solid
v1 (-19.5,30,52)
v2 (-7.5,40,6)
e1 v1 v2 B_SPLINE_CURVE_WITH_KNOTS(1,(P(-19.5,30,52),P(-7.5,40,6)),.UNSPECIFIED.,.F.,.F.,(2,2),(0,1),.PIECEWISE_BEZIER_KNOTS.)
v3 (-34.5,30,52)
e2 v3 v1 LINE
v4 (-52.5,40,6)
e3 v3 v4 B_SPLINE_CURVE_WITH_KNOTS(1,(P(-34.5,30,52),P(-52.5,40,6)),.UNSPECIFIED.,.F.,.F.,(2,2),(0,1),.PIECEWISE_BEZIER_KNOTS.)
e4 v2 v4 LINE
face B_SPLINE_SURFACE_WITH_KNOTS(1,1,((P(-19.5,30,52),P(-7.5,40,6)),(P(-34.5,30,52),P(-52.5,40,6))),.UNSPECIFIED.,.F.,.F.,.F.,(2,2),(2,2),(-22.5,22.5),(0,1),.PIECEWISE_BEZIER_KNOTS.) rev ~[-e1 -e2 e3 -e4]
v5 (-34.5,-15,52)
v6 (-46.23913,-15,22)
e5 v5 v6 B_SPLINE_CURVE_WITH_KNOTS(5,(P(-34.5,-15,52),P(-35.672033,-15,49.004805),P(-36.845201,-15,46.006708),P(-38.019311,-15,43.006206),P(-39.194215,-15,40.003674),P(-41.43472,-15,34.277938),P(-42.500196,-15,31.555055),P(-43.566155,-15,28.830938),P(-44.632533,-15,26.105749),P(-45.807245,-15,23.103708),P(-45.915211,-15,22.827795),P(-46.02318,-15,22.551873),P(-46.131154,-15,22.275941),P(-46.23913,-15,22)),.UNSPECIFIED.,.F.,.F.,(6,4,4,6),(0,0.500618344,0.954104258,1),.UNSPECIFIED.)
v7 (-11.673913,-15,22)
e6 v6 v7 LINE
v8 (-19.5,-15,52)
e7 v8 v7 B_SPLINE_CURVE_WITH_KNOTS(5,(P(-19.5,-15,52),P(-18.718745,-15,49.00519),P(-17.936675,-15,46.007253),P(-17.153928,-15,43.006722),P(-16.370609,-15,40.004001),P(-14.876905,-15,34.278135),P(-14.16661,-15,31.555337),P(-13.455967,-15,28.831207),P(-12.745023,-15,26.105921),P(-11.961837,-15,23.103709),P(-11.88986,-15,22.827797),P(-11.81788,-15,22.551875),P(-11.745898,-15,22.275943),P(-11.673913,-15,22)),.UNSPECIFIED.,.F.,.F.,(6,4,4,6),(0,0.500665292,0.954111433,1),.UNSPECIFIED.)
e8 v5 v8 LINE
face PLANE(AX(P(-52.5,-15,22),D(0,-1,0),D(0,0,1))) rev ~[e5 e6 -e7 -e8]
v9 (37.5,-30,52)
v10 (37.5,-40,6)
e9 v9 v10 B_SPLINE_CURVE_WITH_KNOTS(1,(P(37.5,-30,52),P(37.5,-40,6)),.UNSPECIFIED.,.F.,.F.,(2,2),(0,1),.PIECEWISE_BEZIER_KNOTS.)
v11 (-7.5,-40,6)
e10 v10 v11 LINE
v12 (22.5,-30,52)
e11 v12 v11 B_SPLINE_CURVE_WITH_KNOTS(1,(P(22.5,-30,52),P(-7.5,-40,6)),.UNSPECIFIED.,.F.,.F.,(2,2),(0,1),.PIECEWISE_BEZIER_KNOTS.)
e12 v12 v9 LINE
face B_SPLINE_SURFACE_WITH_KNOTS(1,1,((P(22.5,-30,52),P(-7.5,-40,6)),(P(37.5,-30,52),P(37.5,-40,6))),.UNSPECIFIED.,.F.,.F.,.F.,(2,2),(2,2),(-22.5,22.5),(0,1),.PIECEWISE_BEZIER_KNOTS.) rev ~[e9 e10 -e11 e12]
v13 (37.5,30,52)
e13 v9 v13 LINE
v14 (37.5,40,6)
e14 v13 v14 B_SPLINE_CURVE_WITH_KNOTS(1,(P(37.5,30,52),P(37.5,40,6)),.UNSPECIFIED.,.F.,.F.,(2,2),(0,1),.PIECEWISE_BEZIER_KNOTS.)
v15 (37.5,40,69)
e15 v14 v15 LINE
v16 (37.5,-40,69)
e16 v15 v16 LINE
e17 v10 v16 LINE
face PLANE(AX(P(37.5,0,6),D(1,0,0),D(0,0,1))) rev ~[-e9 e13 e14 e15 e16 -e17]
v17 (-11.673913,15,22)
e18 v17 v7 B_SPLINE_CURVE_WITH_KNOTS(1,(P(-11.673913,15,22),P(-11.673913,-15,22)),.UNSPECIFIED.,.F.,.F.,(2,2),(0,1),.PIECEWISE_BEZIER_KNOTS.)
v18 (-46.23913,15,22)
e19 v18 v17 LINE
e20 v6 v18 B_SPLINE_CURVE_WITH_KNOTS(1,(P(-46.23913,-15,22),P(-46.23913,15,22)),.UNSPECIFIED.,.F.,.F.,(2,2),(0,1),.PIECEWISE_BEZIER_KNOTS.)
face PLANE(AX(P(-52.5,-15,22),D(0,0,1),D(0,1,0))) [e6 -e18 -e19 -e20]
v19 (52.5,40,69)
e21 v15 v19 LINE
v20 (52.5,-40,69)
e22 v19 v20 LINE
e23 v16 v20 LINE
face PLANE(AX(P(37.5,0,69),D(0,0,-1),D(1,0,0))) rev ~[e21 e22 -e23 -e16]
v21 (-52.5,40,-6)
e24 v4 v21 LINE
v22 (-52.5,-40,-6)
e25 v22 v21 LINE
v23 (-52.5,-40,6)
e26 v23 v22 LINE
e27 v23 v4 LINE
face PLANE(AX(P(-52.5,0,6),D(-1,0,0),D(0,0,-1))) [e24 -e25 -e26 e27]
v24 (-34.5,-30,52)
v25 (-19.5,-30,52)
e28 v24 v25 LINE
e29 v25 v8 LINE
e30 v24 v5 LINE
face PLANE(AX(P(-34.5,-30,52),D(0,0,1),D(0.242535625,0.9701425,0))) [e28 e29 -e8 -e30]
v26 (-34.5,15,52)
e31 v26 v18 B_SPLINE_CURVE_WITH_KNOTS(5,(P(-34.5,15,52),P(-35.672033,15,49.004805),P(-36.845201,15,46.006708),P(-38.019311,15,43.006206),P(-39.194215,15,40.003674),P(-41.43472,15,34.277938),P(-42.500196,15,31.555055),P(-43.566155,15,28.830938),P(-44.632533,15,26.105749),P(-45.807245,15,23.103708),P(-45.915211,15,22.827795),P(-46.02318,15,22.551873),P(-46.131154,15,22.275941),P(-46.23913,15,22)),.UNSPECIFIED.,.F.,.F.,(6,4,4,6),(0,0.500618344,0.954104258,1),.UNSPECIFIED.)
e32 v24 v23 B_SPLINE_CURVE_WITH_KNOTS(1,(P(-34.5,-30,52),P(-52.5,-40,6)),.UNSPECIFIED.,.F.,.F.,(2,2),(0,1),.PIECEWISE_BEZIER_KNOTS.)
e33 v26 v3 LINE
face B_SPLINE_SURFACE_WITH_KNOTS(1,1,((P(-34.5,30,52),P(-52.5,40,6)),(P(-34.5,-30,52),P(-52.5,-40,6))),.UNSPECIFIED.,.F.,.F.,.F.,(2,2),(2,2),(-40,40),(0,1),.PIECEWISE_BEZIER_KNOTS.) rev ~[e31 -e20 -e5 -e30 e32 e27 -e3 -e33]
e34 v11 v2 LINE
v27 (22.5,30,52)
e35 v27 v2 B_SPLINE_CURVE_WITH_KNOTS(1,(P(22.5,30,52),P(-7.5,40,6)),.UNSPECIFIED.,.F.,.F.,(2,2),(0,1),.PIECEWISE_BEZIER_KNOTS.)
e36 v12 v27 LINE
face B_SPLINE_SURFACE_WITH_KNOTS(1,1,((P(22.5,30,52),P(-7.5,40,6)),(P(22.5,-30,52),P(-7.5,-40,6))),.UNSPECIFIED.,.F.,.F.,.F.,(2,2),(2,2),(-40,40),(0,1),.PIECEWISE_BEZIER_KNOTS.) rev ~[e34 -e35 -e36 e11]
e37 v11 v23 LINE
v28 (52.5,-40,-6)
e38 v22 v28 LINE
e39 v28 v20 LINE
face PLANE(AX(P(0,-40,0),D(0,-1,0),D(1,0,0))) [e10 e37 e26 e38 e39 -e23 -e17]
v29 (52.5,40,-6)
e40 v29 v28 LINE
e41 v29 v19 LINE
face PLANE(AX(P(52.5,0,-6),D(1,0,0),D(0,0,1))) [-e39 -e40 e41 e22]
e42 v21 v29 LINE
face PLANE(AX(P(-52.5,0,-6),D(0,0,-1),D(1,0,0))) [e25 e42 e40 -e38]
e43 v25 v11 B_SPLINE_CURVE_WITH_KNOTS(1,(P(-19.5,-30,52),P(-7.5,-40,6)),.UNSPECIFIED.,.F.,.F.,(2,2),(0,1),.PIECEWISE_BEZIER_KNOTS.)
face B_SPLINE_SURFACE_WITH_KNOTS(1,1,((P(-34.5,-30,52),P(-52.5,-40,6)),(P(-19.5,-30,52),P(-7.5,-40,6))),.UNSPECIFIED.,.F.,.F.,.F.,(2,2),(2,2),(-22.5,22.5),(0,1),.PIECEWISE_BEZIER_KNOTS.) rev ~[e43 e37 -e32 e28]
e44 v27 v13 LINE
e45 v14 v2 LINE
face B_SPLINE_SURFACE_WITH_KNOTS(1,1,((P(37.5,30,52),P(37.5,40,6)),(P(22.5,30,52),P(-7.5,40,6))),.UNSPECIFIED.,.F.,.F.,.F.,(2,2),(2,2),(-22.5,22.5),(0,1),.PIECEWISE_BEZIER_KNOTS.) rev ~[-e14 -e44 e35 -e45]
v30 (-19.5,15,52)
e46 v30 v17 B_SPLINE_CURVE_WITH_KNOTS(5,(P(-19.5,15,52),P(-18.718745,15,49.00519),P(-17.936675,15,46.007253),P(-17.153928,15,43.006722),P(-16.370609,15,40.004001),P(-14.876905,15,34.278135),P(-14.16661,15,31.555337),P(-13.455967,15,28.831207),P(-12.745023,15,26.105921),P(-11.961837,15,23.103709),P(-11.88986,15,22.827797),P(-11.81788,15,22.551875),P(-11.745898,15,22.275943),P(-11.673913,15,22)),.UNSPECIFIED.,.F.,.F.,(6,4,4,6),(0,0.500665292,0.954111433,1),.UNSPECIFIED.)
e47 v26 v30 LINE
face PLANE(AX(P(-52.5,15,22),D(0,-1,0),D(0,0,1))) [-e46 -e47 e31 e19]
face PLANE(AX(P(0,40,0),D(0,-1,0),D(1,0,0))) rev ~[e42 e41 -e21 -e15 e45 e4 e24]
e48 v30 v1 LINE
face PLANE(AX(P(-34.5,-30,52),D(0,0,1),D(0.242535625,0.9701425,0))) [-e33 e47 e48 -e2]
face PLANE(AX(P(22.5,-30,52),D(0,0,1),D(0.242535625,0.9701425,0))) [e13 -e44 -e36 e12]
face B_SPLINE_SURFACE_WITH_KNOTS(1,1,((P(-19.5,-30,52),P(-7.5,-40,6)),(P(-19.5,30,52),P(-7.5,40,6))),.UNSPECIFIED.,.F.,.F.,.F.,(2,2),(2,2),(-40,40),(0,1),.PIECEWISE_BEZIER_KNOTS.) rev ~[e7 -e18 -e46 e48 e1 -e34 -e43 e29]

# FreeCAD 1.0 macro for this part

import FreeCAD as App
import Part
import Sketcher

V = App.Vector

doc = App.newDocument("Part")
body = doc.addObject("PartDesign::Body", "Body")

# Sketch on XZ plane
sketch1 = body.newObject("Sketcher::SketchObject", "Sketch")
sketch1.AttachmentSupport = (doc.getObject("XZ_Plane"), [""])
sketch1.MapMode = "FlatFace"
sketch1.addGeometry([
    Part.LineSegment(V(-52, -6, 0), V(52, -6, 0)),  # 0
    Part.LineSegment(V(52, -6, 0), V(52, 69, 0)),  # 1
    Part.LineSegment(V(52, 69, 0), V(38, 69, 0)),  # 2
    Part.LineSegment(V(38, 69, 0), V(38, 6, 0)),  # 3
    Part.LineSegment(V(38, 6, 0), V(-52, 6, 0)),  # 4
    Part.LineSegment(V(-52, 6, 0), V(-52, -6, 0)),  # 5
], False)
sketch1.addConstraint([
    Sketcher.Constraint("Coincident", 0, 2, 1, 1),
    Sketcher.Constraint("Coincident", 1, 2, 2, 1),
    Sketcher.Constraint("Coincident", 2, 2, 3, 1),
    Sketcher.Constraint("Coincident", 3, 2, 4, 1),
    Sketcher.Constraint("Coincident", 4, 2, 5, 1),
    Sketcher.Constraint("Coincident", 5, 2, 0, 1),
    Sketcher.Constraint("Horizontal", 0),
    Sketcher.Constraint("Vertical", 1),
    Sketcher.Constraint("Horizontal", 2),
    Sketcher.Constraint("Vertical", 3),
    Sketcher.Constraint("Horizontal", 4),
    Sketcher.Constraint("Vertical", 5),
    Sketcher.Constraint("Symmetric", 0, 2, 4, 2, -1, 1),
    Sketcher.Constraint("DistanceX", 0, 1, 0, 2, 105.0),
    Sketcher.Constraint("DistanceX", 2, 2, 2, 1, 15.0),
    Sketcher.Constraint("DistanceY", 1, 1, 1, 2, 75.0),
    Sketcher.Constraint("DistanceY", 3, 2, 3, 1, 63.0),
])
pad1 = body.newObject("PartDesign::Pad", "Pad")
pad1.Profile = sketch1
pad1.Length = 80
pad1.Midplane = True

# Sketch on XY plane
sketch2 = body.newObject("Sketcher::SketchObject", "Sketch001")
sketch2.AttachmentSupport = (doc.getObject("XY_Plane"), [""])
sketch2.MapMode = "FlatFace"
sketch2.AttachmentOffset = App.Placement(V(0, 0, 52), App.Rotation())
sketch2.addGeometry([
    Part.LineSegment(V(-34, 30, 0), V(-34, -30, 0)),
    Part.LineSegment(V(-34, -30, 0), V(-20, -30, 0)),
    Part.LineSegment(V(-20, -30, 0), V(-20, 30, 0)),
    Part.LineSegment(V(-20, 30, 0), V(-34, 30, 0)),
], False)
sketch2.addConstraint([
    Sketcher.Constraint("Coincident", 0, 2, 1, 1),
    Sketcher.Constraint("Coincident", 1, 2, 2, 1),
    Sketcher.Constraint("Coincident", 2, 2, 3, 1),
    Sketcher.Constraint("Coincident", 3, 2, 0, 1),
    Sketcher.Constraint("Vertical", 0),
    Sketcher.Constraint("Horizontal", 1),
    Sketcher.Constraint("Vertical", 2),
    Sketcher.Constraint("Horizontal", 3),
    Sketcher.Constraint("DistanceX", 1, 1, 1, 2, 15.0),
    Sketcher.Constraint("DistanceY", 0, 2, 0, 1, 60.0),
    Sketcher.Constraint("DistanceY", 0, 2, -1, 1, 30.0),
    Sketcher.Constraint("DistanceX", 0, 2, -1, 1, 34.5),
])

# Sketch on XY plane
sketch3 = body.newObject("Sketcher::SketchObject", "Sketch002")
sketch3.AttachmentSupport = (doc.getObject("XY_Plane"), [""])
sketch3.MapMode = "FlatFace"
sketch3.AttachmentOffset = App.Placement(V(0, 0, 6), App.Rotation())
sketch3.addGeometry([
    Part.LineSegment(V(-52, 40, 0), V(-52, -40, 0)),
    Part.LineSegment(V(-52, -40, 0), V(-8, -40, 0)),
    Part.LineSegment(V(-8, -40, 0), V(-8, 40, 0)),
    Part.LineSegment(V(-8, 40, 0), V(-52, 40, 0)),
], False)
sketch3.addConstraint([
    Sketcher.Constraint("Coincident", 0, 2, 1, 1),
    Sketcher.Constraint("Coincident", 1, 2, 2, 1),
    Sketcher.Constraint("Coincident", 2, 2, 3, 1),
    Sketcher.Constraint("Coincident", 3, 2, 0, 1),
    Sketcher.Constraint("Vertical", 0),
    Sketcher.Constraint("Horizontal", 1),
    Sketcher.Constraint("Vertical", 2),
    Sketcher.Constraint("Horizontal", 3),
    Sketcher.Constraint("DistanceX", 1, 1, 1, 2, 45.0),
    Sketcher.Constraint("DistanceY", 0, 2, 0, 1, 80.0),
    Sketcher.Constraint("DistanceY", 0, 2, -1, 1, 40.0),
    Sketcher.Constraint("DistanceX", 0, 2, -1, 1, 52.5),
])

additiveloft = body.newObject("PartDesign::AdditiveLoft", "AdditiveLoft")
additiveloft.Profile = sketch2
additiveloft.Sections = [sketch3]

# Sketch on XY plane
sketch4 = body.newObject("Sketcher::SketchObject", "Sketch003")
sketch4.AttachmentSupport = (doc.getObject("XY_Plane"), [""])
sketch4.MapMode = "FlatFace"
sketch4.AttachmentOffset = App.Placement(V(0, 0, 52), App.Rotation())
sketch4.addGeometry([
    Part.LineSegment(V(22, 30, 0), V(22, -30, 0)),
    Part.LineSegment(V(22, -30, 0), V(38, -30, 0)),
    Part.LineSegment(V(38, -30, 0), V(38, 30, 0)),
    Part.LineSegment(V(38, 30, 0), V(22, 30, 0)),
], False)
sketch4.addConstraint([
    Sketcher.Constraint("Coincident", 0, 2, 1, 1),
    Sketcher.Constraint("Coincident", 1, 2, 2, 1),
    Sketcher.Constraint("Coincident", 2, 2, 3, 1),
    Sketcher.Constraint("Coincident", 3, 2, 0, 1),
    Sketcher.Constraint("Vertical", 0),
    Sketcher.Constraint("Horizontal", 1),
    Sketcher.Constraint("Vertical", 2),
    Sketcher.Constraint("Horizontal", 3),
    Sketcher.Constraint("DistanceX", 1, 1, 1, 2, 15.0),
    Sketcher.Constraint("DistanceY", 0, 2, 0, 1, 60.0),
    Sketcher.Constraint("DistanceY", 0, 2, -1, 1, 30.0),
    Sketcher.Constraint("DistanceX", -1, 1, 0, 2, 22.5),
])

# Sketch on XY plane
sketch5 = body.newObject("Sketcher::SketchObject", "Sketch004")
sketch5.AttachmentSupport = (doc.getObject("XY_Plane"), [""])
sketch5.MapMode = "FlatFace"
sketch5.AttachmentOffset = App.Placement(V(0, 0, 6), App.Rotation())
sketch5.addGeometry([
    Part.LineSegment(V(-8, 40, 0), V(-8, -40, 0)),
    Part.LineSegment(V(-8, -40, 0), V(38, -40, 0)),
    Part.LineSegment(V(38, -40, 0), V(38, 40, 0)),
    Part.LineSegment(V(38, 40, 0), V(-8, 40, 0)),
], False)
sketch5.addConstraint([
    Sketcher.Constraint("Coincident", 0, 2, 1, 1),
    Sketcher.Constraint("Coincident", 1, 2, 2, 1),
    Sketcher.Constraint("Coincident", 2, 2, 3, 1),
    Sketcher.Constraint("Coincident", 3, 2, 0, 1),
    Sketcher.Constraint("Vertical", 0),
    Sketcher.Constraint("Horizontal", 1),
    Sketcher.Constraint("Vertical", 2),
    Sketcher.Constraint("Horizontal", 3),
    Sketcher.Constraint("DistanceX", 1, 1, 1, 2, 45.0),
    Sketcher.Constraint("DistanceY", 0, 2, 0, 1, 80.0),
    Sketcher.Constraint("DistanceY", 0, 2, -1, 1, 40.0),
    Sketcher.Constraint("DistanceX", 0, 2, -1, 1, 7.5),
])

additiveloft2 = body.newObject("PartDesign::AdditiveLoft", "AdditiveLoft001")
additiveloft2.Profile = sketch4
additiveloft2.Sections = [sketch5]

# Sketch on YZ plane
sketch6 = body.newObject("Sketcher::SketchObject", "Sketch005")
sketch6.AttachmentSupport = (doc.getObject("YZ_Plane"), [""])
sketch6.MapMode = "FlatFace"
sketch6.AttachmentOffset = App.Placement(V(0, 0, -52.5), App.Rotation())
sketch6.addGeometry([
    Part.LineSegment(V(-15, 52, 0), V(-15, 22, 0)),
    Part.LineSegment(V(-15, 22, 0), V(15, 22, 0)),
    Part.LineSegment(V(15, 22, 0), V(15, 52, 0)),
    Part.LineSegment(V(15, 52, 0), V(-15, 52, 0)),
], False)
sketch6.addConstraint([
    Sketcher.Constraint("Coincident", 0, 2, 1, 1),
    Sketcher.Constraint("Coincident", 1, 2, 2, 1),
    Sketcher.Constraint("Coincident", 2, 2, 3, 1),
    Sketcher.Constraint("Coincident", 3, 2, 0, 1),
    Sketcher.Constraint("Vertical", 0),
    Sketcher.Constraint("Horizontal", 1),
    Sketcher.Constraint("Vertical", 2),
    Sketcher.Constraint("Horizontal", 3),
    Sketcher.Constraint("Equal", 3, 0),
    Sketcher.Constraint("DistanceX", 1, 1, 1, 2, 30.0),
    Sketcher.Constraint("DistanceX", 0, 2, -1, 1, 15.0),
    Sketcher.Constraint("DistanceY", -1, 1, 0, 2, 22.0),
])
pocket1 = body.newObject("PartDesign::Pocket", "Pocket")
pocket1.Profile = sketch6
pocket1.Length = 50
pocket1.Reversed = True

doc.recompute()
